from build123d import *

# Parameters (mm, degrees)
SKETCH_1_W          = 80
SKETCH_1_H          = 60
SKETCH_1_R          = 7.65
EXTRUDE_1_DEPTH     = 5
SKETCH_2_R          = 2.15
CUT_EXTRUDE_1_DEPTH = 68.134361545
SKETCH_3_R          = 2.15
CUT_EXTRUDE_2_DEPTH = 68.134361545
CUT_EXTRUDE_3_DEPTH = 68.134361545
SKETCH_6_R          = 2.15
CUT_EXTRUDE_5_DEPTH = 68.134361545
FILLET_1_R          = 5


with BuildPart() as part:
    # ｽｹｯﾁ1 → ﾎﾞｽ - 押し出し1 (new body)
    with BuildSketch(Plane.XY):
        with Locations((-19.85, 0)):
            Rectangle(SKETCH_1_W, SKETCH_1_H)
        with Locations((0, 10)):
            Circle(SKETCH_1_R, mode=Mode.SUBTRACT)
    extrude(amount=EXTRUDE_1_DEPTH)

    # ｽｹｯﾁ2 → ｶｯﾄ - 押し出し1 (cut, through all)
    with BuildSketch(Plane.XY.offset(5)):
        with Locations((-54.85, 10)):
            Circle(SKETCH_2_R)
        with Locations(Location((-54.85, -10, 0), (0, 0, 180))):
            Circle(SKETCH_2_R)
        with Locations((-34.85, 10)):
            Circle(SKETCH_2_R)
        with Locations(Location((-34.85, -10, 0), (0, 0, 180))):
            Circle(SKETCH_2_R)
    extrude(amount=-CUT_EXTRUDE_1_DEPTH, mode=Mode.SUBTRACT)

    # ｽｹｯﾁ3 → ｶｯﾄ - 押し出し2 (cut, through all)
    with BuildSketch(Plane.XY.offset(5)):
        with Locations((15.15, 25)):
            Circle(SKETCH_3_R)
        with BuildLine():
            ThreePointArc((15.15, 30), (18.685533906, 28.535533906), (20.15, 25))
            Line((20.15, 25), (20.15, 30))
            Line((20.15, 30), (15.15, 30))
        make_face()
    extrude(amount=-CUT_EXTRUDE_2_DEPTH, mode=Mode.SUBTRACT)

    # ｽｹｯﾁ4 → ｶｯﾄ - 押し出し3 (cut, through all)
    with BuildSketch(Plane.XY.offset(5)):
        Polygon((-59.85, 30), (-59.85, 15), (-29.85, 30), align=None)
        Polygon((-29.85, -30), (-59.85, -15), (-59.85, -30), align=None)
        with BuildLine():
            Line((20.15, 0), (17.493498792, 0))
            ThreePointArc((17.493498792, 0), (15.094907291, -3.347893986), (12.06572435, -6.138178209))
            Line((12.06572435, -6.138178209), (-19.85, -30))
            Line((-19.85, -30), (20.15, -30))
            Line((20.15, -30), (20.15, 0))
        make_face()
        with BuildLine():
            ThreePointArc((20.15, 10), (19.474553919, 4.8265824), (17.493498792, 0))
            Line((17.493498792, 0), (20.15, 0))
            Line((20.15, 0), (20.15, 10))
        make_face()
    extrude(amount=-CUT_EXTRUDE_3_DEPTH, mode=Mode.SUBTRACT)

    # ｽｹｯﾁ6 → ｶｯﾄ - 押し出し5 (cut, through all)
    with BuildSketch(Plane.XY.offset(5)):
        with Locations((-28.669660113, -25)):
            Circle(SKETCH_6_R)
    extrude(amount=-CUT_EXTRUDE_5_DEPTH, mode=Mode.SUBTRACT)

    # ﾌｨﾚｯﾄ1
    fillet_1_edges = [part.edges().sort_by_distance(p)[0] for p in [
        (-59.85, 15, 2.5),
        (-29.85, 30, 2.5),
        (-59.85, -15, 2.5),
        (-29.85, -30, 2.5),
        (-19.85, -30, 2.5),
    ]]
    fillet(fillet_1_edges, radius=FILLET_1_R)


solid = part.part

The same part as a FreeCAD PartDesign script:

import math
import FreeCAD as App
import Part
import Sketcher

V = App.Vector
Q = App.Units.Quantity


def edges_at(feature, points):
    """Names of the edges that pass closest to the given points."""
    edges = feature.Shape.Edges
    near = lambda p: min(range(len(edges)), key=lambda i: edges[i].distToShape(Part.Vertex(*p))[0])
    return sorted({f"Edge{near(p) + 1}" for p in points})


def add_polygon(sketch, points):
    """Adds a closed chain of lines whose ends are joined by coincident constraints."""
    first, n = sketch.GeometryCount, len(points)
    for a, b in zip(points, points[1:] + points[:1]):
        sketch.addGeometry(Part.LineSegment(App.Vector(*a, 0), App.Vector(*b, 0)), False)
    for i in range(n):
        sketch.addConstraint(Sketcher.Constraint("Coincident", first + i, 2, first + (i + 1) % n, 1))

doc = App.newDocument("Part")
body = doc.addObject("PartDesign::Body", "Body")

sketch1 = body.newObject("Sketcher::SketchObject", "Sketch")
sketch1.AttachmentSupport = (doc.getObject("XY_Plane"), [""])
sketch1.MapMode = "FlatFace"
add_polygon(sketch1, [(-59.85, 30), (-59.85, -30), (20.15, -30), (20.15, 30)])
sketch1.addGeometry(Part.Circle(V(0, 10, 0), V(0, 0, 1), 7.65), False)
sketch1.addConstraint([
    Sketcher.Constraint("Vertical", 0),
    Sketcher.Constraint("Horizontal", 1),
    Sketcher.Constraint("Vertical", 2),
    Sketcher.Constraint("Horizontal", 3),
    Sketcher.Constraint("PointOnObject", 4, 3, -2),
    Sketcher.Constraint("Diameter", 4, Q("15.3 mm")),
    Sketcher.Constraint("DistanceX", 1, 1, 1, 2, Q("80 mm")),
    Sketcher.Constraint("DistanceY", 0, 2, 0, 1, Q("60 mm")),
    Sketcher.Constraint("DistanceY", -1, 1, 4, 3, Q("10 mm")),
    Sketcher.Constraint("DistanceY", 0, 2, -1, 1, Q("30 mm")),
    Sketcher.Constraint("DistanceX", 0, 2, -1, 1, Q("59.85 mm")),
])
pad1 = body.newObject("PartDesign::Pad", "Pad")
pad1.Profile = sketch1
pad1.Length = 5

sketch2 = body.newObject("Sketcher::SketchObject", "Sketch001")
sketch2.AttachmentSupport = (doc.getObject("XY_Plane"), [""])
sketch2.MapMode = "FlatFace"
sketch2.AttachmentOffset = App.Placement(V(0, 0, 5), App.Rotation())
sketch2.addGeometry([
    Part.Circle(V(-54.85, 10, 0), V(0, 0, 1), 2.15),
    Part.Circle(V(-54.85, -10, 0), V(0, 0, 1), 2.15),
    Part.Circle(V(-34.85, 10, 0), V(0, 0, 1), 2.15),
    Part.Circle(V(-34.85, -10, 0), V(0, 0, 1), 2.15),
], False)
sketch2.addConstraint([
    Sketcher.Constraint("Equal", 0, 1),
    Sketcher.Constraint("Equal", 1, 2),
    Sketcher.Constraint("Equal", 2, 3),
    Sketcher.Constraint("Symmetric", 0, 3, 1, 3, -1),
    Sketcher.Constraint("Symmetric", 2, 3, 3, 3, -1),
    Sketcher.Constraint("Horizontal", 0, 3, 2, 3),
    Sketcher.Constraint("Diameter", 0, Q("4.3 mm")),
    Sketcher.Constraint("DistanceY", -1, 1, 0, 3, Q("10 mm")),
    Sketcher.Constraint("DistanceX", 0, 3, 2, 3, Q("20 mm")),
    Sketcher.Constraint("DistanceX", 0, 3, -1, 1, Q("54.85 mm")),
])
pocket1 = body.newObject("PartDesign::Pocket", "Pocket")
pocket1.Profile = sketch2
pocket1.Type = "ThroughAll"

sketch3 = body.newObject("Sketcher::SketchObject", "Sketch002")
sketch3.AttachmentSupport = (doc.getObject("XY_Plane"), [""])
sketch3.MapMode = "FlatFace"
sketch3.AttachmentOffset = App.Placement(V(0, 0, 5), App.Rotation())
sketch3.addGeometry([
    Part.Circle(V(15.15, 25, 0), V(0, 0, 1), 2.15),
    Part.ArcOfCircle(Part.Circle(V(15.15, 25, 0), V(0, 0, 1), 5), math.radians(0), math.radians(90)),
    Part.LineSegment(V(20.15, 25, 0), V(20.15, 30, 0)),
    Part.LineSegment(V(20.15, 30, 0), V(15.15, 30, 0)),
], False)
sketch3.addConstraint([
    Sketcher.Constraint("Tangent", 1, 1, 2, 1),
    Sketcher.Constraint("Coincident", 2, 2, 3, 1),
    Sketcher.Constraint("Tangent", 3, 2, 1, 2),
    Sketcher.Constraint("Vertical", 2),
    Sketcher.Constraint("Horizontal", 3),
    Sketcher.Constraint("Coincident", 1, 3, 0, 3),
    Sketcher.Constraint("Radius", 1, Q("5 mm")),
    Sketcher.Constraint("Diameter", 0, Q("4.3 mm")),
    Sketcher.Constraint("DistanceY", -1, 1, 0, 3, Q("25 mm")),
    Sketcher.Constraint("DistanceX", -1, 1, 0, 3, Q("15.15 mm")),
])
pocket2 = body.newObject("PartDesign::Pocket", "Pocket001")
pocket2.Profile = sketch3
pocket2.Type = "ThroughAll"

sketch4 = body.newObject("Sketcher::SketchObject", "Sketch003")
sketch4.AttachmentSupport = (doc.getObject("XY_Plane"), [""])
sketch4.MapMode = "FlatFace"
sketch4.AttachmentOffset = App.Placement(V(0, 0, 5), App.Rotation())
add_polygon(sketch4, [(-59.85, 30), (-59.85, 15), (-29.85, 30)])
add_polygon(sketch4, [(-29.85, -30), (-59.85, -15), (-59.85, -30)])
sketch4.addGeometry(Part.ArcOfCircle(Part.Circle(V(0, 10, 0), V(0, 0, 1), 20.15), math.radians(-53.216337), math.radians(-29.754053)), False)
sketch4.addGeometry(Part.LineSegment(V(12.065724, -6.138178, 0), V(-19.85, -30, 0)), False)
sketch4.addGeometry(Part.LineSegment(V(-19.85, -30, 0), V(20.15, -30, 0)), False)
sketch4.addGeometry(Part.LineSegment(V(20.15, -30, 0), V(20.15, 10, 0)), False)
sketch4.addGeometry(Part.ArcOfCircle(Part.Circle(V(0, 10, 0), V(0, 0, 1), 20.15), math.radians(-29.754053), math.radians(0)), False)
sketch4.addConstraint([
    Sketcher.Constraint("Tangent", 6, 1, 7, 1),
    Sketcher.Constraint("Coincident", 7, 2, 8, 1),
    Sketcher.Constraint("Coincident", 8, 2, 9, 1),
    Sketcher.Constraint("Tangent", 9, 2, 10, 2),
    Sketcher.Constraint("Tangent", 10, 1, 6, 2),
    Sketcher.Constraint("Vertical", 0),
    Sketcher.Constraint("Horizontal", 2),
    Sketcher.Constraint("Vertical", 4),
    Sketcher.Constraint("Horizontal", 5),
    Sketcher.Constraint("Horizontal", 8),
    Sketcher.Constraint("Vertical", 9),
    Sketcher.Constraint("Equal", 6, 10),
    Sketcher.Constraint("Symmetric", 0, 2, 3, 2, -1),
    Sketcher.Constraint("Symmetric", 1, 2, 5, 2, -1),
    Sketcher.Constraint("PointOnObject", 6, 3, -2),
    Sketcher.Constraint("PointOnObject", 10, 1, -1),
    Sketcher.Constraint("Horizontal", 5, 2, 7, 2),
    Sketcher.Constraint("Equal", 8, 9),
    Sketcher.Constraint("DistanceX", 2, 2, 2, 1, Q("30 mm")),
    Sketcher.Constraint("DistanceX", 8, 1, 8, 2, Q("40 mm")),
    Sketcher.Constraint("DistanceY", 0, 2, 0, 1, Q("15 mm")),
    Sketcher.Constraint("Radius", 6, Q("20.15 mm")),
    Sketcher.Constraint("DistanceY", -1, 1, 6, 3, Q("10 mm")),
    Sketcher.Constraint("DistanceX", 5, 2, 7, 2, Q("10 mm")),
])
pocket3 = body.newObject("PartDesign::Pocket", "Pocket002")
pocket3.Profile = sketch4
pocket3.Type = "ThroughAll"

sketch5 = body.newObject("Sketcher::SketchObject", "Sketch004")
sketch5.AttachmentSupport = (doc.getObject("XY_Plane"), [""])
sketch5.MapMode = "FlatFace"
sketch5.AttachmentOffset = App.Placement(V(0, 0, 5), App.Rotation())
sketch5.addGeometry(Part.Circle(V(-28.66966, -25, 0), V(0, 0, 1), 2.15), False)
sketch5.addConstraint([
    Sketcher.Constraint("Diameter", 0, Q("4.3 mm")),
    Sketcher.Constraint("DistanceY", 0, 3, -1, 1, Q("25 mm")),
    Sketcher.Constraint("DistanceX", 0, 3, -1, 1, Q("28.66966 mm")),
])
pocket4 = body.newObject("PartDesign::Pocket", "Pocket003")
pocket4.Profile = sketch5
pocket4.Type = "ThroughAll"
doc.recompute()

fillet = body.newObject("PartDesign::Fillet", "Fillet")
fillet.Base = (pocket4, edges_at(pocket4, [
    (-59.85, 15, 2.5),
    (-29.85, 30, 2.5),
    (-59.85, -15, 2.5),
    (-29.85, -30, 2.5),
    (-19.85, -30, 2.5),
]))
fillet.Radius = 5

doc.recompute()
